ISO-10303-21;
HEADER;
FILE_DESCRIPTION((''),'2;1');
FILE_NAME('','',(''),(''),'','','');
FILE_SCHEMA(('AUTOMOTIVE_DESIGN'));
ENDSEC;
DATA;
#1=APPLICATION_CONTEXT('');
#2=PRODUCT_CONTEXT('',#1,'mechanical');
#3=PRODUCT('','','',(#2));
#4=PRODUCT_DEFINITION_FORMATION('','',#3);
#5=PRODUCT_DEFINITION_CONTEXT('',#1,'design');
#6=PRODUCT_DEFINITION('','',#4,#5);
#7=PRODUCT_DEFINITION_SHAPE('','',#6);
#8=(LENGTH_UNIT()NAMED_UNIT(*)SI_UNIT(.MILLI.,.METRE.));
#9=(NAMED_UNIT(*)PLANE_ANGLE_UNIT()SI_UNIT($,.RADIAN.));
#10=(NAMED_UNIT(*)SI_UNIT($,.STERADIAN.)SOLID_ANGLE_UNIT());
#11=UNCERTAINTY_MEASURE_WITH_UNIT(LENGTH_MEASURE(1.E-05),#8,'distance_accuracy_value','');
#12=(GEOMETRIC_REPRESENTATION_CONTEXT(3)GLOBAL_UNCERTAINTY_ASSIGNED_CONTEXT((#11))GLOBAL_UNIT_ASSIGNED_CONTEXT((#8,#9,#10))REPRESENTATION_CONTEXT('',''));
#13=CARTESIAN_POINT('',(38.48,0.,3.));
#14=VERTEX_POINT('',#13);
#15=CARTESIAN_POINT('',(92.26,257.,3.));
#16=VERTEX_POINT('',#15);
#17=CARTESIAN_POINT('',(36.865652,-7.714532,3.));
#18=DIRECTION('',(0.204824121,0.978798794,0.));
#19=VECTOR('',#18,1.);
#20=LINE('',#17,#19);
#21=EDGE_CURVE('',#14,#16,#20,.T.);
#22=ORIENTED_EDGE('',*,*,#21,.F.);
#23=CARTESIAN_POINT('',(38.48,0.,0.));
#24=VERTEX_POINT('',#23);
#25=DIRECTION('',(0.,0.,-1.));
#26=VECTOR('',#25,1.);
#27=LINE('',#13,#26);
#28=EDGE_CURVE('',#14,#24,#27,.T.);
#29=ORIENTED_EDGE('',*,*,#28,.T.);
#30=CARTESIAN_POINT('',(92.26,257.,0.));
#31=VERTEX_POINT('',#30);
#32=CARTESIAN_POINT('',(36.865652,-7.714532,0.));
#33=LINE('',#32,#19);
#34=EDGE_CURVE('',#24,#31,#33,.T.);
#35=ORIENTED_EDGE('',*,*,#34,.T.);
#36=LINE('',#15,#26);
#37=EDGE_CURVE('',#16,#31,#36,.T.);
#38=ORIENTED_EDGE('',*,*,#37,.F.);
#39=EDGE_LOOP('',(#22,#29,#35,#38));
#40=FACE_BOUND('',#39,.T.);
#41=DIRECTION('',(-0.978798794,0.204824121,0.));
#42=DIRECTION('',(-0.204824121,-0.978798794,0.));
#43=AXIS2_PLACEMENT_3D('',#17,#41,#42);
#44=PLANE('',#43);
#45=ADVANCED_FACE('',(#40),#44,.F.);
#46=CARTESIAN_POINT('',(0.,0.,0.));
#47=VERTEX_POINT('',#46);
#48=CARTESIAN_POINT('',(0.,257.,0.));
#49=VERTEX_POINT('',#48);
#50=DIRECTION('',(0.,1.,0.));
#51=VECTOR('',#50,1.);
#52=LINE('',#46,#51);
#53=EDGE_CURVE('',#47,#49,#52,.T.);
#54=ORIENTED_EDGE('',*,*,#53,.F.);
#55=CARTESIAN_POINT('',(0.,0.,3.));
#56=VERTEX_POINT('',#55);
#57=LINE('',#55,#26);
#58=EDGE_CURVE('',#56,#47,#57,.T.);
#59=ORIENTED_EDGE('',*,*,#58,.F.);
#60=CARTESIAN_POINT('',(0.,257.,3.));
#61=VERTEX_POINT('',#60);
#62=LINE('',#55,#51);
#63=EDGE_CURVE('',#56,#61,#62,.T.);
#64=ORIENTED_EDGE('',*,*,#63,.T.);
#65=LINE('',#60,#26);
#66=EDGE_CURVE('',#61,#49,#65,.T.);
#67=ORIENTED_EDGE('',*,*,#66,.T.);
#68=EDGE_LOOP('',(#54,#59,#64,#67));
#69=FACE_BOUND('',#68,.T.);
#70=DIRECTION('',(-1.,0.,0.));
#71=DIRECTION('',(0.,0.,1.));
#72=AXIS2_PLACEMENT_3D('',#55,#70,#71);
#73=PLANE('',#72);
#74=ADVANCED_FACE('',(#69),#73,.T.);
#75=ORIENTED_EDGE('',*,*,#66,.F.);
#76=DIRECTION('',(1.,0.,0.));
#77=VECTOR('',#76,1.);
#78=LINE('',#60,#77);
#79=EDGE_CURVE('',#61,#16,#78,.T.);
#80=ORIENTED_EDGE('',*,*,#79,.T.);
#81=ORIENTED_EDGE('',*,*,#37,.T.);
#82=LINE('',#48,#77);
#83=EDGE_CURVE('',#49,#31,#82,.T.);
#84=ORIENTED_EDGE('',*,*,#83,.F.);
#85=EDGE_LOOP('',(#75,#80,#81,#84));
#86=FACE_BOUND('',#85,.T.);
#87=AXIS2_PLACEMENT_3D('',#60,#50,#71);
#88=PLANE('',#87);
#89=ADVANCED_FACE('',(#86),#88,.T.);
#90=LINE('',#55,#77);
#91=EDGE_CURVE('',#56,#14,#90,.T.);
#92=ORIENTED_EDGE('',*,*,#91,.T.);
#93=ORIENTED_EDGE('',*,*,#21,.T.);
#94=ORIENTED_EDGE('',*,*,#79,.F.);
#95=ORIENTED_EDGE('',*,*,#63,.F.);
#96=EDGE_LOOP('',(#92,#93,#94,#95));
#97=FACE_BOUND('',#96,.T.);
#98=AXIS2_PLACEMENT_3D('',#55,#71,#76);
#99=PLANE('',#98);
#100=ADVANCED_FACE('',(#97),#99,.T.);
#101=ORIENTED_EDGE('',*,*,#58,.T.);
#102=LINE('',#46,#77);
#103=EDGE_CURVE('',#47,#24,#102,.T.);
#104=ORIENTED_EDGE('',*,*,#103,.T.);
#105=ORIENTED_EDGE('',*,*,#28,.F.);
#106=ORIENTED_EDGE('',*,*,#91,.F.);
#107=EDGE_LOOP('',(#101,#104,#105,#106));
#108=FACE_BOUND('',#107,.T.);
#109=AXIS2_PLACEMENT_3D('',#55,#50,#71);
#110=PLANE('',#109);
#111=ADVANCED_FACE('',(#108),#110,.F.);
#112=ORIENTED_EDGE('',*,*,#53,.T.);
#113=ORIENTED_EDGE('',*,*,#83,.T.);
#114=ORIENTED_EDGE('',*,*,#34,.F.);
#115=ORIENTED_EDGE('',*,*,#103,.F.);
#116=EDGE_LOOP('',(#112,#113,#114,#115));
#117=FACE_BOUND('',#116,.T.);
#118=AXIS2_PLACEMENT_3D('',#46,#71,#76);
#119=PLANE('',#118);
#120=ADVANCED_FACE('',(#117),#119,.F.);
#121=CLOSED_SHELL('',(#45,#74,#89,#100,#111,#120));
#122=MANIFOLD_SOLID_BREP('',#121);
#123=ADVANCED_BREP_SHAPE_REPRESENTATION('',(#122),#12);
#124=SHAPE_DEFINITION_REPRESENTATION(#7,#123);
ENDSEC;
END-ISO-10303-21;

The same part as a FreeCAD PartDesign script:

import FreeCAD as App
import Part
import Sketcher

V = App.Vector
Q = App.Units.Quantity


def add_polygon(sketch, points):
    """Adds a closed chain of lines whose ends are joined by coincident constraints."""
    first, n = sketch.GeometryCount, len(points)
    for a, b in zip(points, points[1:] + points[:1]):
        sketch.addGeometry(Part.LineSegment(App.Vector(*a, 0), App.Vector(*b, 0)), False)
    for i in range(n):
        sketch.addConstraint(Sketcher.Constraint("Coincident", first + i, 2, first + (i + 1) % n, 1))

doc = App.newDocument("Part")
params = doc.addObject("Spreadsheet::Sheet", "Params")
for row, (alias, value) in enumerate([
    ("sketch1_height", "257 mm"),
    ("sketch1_width", "92.26 mm"),
    ("sketch1_width2", "38.48 mm"),
    ("pad1_length", "3 mm"),
], start=1):
    params.set(f"A{row}", alias)
    params.set(f"B{row}", "=" + value)
    params.setAlias(f"B{row}", alias)

body = doc.addObject("PartDesign::Body", "Body")

# Sketch on XY plane
sketch1 = doc.addObject("Sketcher::SketchObject", "Sketch")
body.addObject(sketch1)
sketch1.AttachmentSupport = (doc.XY_Plane, [""])
sketch1.MapMode = "FlatFace"
add_polygon(sketch1, [(92.26, 257), (0, 257), (0, 0), (38.48, 0)])  # lines 0-3
sketch1.addConstraint([
    Sketcher.Constraint("Horizontal", 0),
    Sketcher.Constraint("Vertical", 1),
    Sketcher.Constraint("Horizontal", 2),
    Sketcher.Constraint("Coincident", 1, 2, -1, 1),
    Sketcher.Constraint("DistanceY", 1, 2, 1, 1, Q("257 mm")),
    Sketcher.Constraint("DistanceX", 0, 2, 0, 1, Q("92.26 mm")),
    Sketcher.Constraint("DistanceX", 2, 1, 2, 2, Q("38.48 mm")),
])
sketch1.setExpression("Constraints[8]", "Params.sketch1_height")
sketch1.setExpression("Constraints[9]", "Params.sketch1_width")
sketch1.setExpression("Constraints[10]", "Params.sketch1_width2")
pad1 = doc.addObject("PartDesign::Pad", "Pad")
body.addObject(pad1)
pad1.Profile = sketch1
pad1.setExpression("Length", "Params.pad1_length")

doc.recompute()
